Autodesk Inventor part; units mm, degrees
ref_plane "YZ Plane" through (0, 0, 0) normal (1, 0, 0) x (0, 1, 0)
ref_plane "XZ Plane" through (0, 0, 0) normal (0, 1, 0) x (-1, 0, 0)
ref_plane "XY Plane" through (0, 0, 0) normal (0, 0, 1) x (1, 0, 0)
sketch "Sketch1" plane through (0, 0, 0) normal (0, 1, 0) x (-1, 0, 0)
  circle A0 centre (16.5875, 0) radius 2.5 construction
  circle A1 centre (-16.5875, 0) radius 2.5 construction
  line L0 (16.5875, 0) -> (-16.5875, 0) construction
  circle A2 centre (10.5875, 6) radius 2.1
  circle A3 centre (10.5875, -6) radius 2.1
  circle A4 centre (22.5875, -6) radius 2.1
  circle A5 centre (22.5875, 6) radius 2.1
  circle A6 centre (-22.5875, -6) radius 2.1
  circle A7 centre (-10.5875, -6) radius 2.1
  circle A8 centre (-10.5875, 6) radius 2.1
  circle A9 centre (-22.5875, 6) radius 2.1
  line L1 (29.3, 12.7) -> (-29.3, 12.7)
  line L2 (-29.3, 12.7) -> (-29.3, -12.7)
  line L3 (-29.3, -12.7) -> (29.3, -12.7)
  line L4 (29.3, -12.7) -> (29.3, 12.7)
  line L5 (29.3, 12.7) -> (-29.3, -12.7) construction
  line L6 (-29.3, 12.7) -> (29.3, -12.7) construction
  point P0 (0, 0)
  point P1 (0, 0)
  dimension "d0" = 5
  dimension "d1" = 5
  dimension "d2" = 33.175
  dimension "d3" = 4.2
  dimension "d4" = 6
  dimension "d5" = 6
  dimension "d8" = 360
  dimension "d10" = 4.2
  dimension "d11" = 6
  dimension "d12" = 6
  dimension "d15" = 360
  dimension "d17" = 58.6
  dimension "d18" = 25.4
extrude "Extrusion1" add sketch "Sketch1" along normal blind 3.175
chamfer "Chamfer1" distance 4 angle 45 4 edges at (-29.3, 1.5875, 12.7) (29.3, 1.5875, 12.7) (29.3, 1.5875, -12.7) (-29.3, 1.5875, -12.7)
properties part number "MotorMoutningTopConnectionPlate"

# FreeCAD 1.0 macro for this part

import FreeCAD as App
import Part
import Sketcher
from FreeCAD import Vector
Q = App.Units.Quantity


def edges_at(feature, points):
    """Names of the edges that pass closest to the given points."""
    edges = feature.Shape.Edges
    near = lambda p: min(range(len(edges)), key=lambda i: edges[i].distToShape(Part.Vertex(*p))[0])
    return sorted({f"Edge{near(p) + 1}" for p in points})

doc = App.newDocument("Part")
body = doc.addObject("PartDesign::Body", "Body")

sketch1 = body.newObject("Sketcher::SketchObject", "Sketch")
sketch1.AttachmentSupport = (doc.getObject("XZ_Plane"), [""])
sketch1.MapMode = "FlatFace"
sketch1.addGeometry([
    Part.LineSegment(Vector(-29.3, -12.7, 0), Vector(-29.3, 12.7, 0)),
    Part.LineSegment(Vector(-29.3, 12.7, 0), Vector(29.3, 12.7, 0)),
    Part.LineSegment(Vector(29.3, 12.7, 0), Vector(29.3, -12.7, 0)),
    Part.LineSegment(Vector(29.3, -12.7, 0), Vector(-29.3, -12.7, 0)),
    Part.Circle(Vector(22.6, -6, 0), Vector(0, 0, 1), 2.1),
    Part.Circle(Vector(10.6, -6, 0), Vector(0, 0, 1), 2.1),
    Part.Circle(Vector(-10.6, -6, 0), Vector(0, 0, 1), 2.1),
    Part.Circle(Vector(-22.6, -6, 0), Vector(0, 0, 1), 2.1),
    Part.Circle(Vector(22.6, 6, 0), Vector(0, 0, 1), 2.1),
    Part.Circle(Vector(10.6, 6, 0), Vector(0, 0, 1), 2.1),
    Part.Circle(Vector(-10.6, 6, 0), Vector(0, 0, 1), 2.1),
    Part.Circle(Vector(-22.6, 6, 0), Vector(0, 0, 1), 2.1),
], False)
sketch1.addConstraint([
    Sketcher.Constraint("Coincident", 0, 2, 1, 1),
    Sketcher.Constraint("Coincident", 1, 2, 2, 1),
    Sketcher.Constraint("Coincident", 2, 2, 3, 1),
    Sketcher.Constraint("Coincident", 3, 2, 0, 1),
    Sketcher.Constraint("Vertical", 0),
    Sketcher.Constraint("Horizontal", 1),
    Sketcher.Constraint("Vertical", 2),
    Sketcher.Constraint("Horizontal", 3),
    Sketcher.Constraint("Equal", 4, 5),
    Sketcher.Constraint("Equal", 5, 6),
    Sketcher.Constraint("Equal", 6, 7),
    Sketcher.Constraint("Equal", 7, 8),
    Sketcher.Constraint("Equal", 8, 9),
    Sketcher.Constraint("Equal", 9, 10),
    Sketcher.Constraint("Equal", 10, 11),
    Sketcher.Constraint("Symmetric", 7, 3, 8, 3, -1, 1),
    Sketcher.Constraint("Symmetric", 6, 3, 9, 3, -1, 1),
    Sketcher.Constraint("Symmetric", 5, 3, 10, 3, -1, 1),
    Sketcher.Constraint("Symmetric", 4, 3, 11, 3, -1, 1),
    Sketcher.Constraint("Symmetric", 0, 2, 2, 2, -1, 1),
    Sketcher.Constraint("Symmetric", 5, 3, 6, 3, -2),
    Sketcher.Constraint("Symmetric", 4, 3, 7, 3, -2),
    Sketcher.Constraint("Horizontal", 4, 3, 5, 3),
    Sketcher.Constraint("Diameter", 4, Q("4.2 mm")),
    Sketcher.Constraint("DistanceX", 1, 1, 1, 2, Q("58.6 mm")),
    Sketcher.Constraint("DistanceY", 0, 1, 0, 2, Q("25.4 mm")),
    Sketcher.Constraint("DistanceY", 4, 3, -1, 1, Q("6 mm")),
    Sketcher.Constraint("DistanceX", 5, 3, 4, 3, Q("12 mm")),
    Sketcher.Constraint("DistanceX", 6, 3, 4, 3, Q("33.175 mm")),
])
pad1 = body.newObject("PartDesign::Pad", "Pad")
pad1.Profile = sketch1
pad1.Length = 3.175
pad1.Reversed = True
doc.recompute()

chamfer = body.newObject("PartDesign::Chamfer", "Chamfer")
chamfer.Base = (pad1, edges_at(pad1, [
    (-29.3, 1.587, 12.7),
    (29.3, 1.587, 12.7),
    (29.3, 1.587, -12.7),
    (-29.3, 1.587, -12.7),
]))
chamfer.Size = 4

doc.recompute()
